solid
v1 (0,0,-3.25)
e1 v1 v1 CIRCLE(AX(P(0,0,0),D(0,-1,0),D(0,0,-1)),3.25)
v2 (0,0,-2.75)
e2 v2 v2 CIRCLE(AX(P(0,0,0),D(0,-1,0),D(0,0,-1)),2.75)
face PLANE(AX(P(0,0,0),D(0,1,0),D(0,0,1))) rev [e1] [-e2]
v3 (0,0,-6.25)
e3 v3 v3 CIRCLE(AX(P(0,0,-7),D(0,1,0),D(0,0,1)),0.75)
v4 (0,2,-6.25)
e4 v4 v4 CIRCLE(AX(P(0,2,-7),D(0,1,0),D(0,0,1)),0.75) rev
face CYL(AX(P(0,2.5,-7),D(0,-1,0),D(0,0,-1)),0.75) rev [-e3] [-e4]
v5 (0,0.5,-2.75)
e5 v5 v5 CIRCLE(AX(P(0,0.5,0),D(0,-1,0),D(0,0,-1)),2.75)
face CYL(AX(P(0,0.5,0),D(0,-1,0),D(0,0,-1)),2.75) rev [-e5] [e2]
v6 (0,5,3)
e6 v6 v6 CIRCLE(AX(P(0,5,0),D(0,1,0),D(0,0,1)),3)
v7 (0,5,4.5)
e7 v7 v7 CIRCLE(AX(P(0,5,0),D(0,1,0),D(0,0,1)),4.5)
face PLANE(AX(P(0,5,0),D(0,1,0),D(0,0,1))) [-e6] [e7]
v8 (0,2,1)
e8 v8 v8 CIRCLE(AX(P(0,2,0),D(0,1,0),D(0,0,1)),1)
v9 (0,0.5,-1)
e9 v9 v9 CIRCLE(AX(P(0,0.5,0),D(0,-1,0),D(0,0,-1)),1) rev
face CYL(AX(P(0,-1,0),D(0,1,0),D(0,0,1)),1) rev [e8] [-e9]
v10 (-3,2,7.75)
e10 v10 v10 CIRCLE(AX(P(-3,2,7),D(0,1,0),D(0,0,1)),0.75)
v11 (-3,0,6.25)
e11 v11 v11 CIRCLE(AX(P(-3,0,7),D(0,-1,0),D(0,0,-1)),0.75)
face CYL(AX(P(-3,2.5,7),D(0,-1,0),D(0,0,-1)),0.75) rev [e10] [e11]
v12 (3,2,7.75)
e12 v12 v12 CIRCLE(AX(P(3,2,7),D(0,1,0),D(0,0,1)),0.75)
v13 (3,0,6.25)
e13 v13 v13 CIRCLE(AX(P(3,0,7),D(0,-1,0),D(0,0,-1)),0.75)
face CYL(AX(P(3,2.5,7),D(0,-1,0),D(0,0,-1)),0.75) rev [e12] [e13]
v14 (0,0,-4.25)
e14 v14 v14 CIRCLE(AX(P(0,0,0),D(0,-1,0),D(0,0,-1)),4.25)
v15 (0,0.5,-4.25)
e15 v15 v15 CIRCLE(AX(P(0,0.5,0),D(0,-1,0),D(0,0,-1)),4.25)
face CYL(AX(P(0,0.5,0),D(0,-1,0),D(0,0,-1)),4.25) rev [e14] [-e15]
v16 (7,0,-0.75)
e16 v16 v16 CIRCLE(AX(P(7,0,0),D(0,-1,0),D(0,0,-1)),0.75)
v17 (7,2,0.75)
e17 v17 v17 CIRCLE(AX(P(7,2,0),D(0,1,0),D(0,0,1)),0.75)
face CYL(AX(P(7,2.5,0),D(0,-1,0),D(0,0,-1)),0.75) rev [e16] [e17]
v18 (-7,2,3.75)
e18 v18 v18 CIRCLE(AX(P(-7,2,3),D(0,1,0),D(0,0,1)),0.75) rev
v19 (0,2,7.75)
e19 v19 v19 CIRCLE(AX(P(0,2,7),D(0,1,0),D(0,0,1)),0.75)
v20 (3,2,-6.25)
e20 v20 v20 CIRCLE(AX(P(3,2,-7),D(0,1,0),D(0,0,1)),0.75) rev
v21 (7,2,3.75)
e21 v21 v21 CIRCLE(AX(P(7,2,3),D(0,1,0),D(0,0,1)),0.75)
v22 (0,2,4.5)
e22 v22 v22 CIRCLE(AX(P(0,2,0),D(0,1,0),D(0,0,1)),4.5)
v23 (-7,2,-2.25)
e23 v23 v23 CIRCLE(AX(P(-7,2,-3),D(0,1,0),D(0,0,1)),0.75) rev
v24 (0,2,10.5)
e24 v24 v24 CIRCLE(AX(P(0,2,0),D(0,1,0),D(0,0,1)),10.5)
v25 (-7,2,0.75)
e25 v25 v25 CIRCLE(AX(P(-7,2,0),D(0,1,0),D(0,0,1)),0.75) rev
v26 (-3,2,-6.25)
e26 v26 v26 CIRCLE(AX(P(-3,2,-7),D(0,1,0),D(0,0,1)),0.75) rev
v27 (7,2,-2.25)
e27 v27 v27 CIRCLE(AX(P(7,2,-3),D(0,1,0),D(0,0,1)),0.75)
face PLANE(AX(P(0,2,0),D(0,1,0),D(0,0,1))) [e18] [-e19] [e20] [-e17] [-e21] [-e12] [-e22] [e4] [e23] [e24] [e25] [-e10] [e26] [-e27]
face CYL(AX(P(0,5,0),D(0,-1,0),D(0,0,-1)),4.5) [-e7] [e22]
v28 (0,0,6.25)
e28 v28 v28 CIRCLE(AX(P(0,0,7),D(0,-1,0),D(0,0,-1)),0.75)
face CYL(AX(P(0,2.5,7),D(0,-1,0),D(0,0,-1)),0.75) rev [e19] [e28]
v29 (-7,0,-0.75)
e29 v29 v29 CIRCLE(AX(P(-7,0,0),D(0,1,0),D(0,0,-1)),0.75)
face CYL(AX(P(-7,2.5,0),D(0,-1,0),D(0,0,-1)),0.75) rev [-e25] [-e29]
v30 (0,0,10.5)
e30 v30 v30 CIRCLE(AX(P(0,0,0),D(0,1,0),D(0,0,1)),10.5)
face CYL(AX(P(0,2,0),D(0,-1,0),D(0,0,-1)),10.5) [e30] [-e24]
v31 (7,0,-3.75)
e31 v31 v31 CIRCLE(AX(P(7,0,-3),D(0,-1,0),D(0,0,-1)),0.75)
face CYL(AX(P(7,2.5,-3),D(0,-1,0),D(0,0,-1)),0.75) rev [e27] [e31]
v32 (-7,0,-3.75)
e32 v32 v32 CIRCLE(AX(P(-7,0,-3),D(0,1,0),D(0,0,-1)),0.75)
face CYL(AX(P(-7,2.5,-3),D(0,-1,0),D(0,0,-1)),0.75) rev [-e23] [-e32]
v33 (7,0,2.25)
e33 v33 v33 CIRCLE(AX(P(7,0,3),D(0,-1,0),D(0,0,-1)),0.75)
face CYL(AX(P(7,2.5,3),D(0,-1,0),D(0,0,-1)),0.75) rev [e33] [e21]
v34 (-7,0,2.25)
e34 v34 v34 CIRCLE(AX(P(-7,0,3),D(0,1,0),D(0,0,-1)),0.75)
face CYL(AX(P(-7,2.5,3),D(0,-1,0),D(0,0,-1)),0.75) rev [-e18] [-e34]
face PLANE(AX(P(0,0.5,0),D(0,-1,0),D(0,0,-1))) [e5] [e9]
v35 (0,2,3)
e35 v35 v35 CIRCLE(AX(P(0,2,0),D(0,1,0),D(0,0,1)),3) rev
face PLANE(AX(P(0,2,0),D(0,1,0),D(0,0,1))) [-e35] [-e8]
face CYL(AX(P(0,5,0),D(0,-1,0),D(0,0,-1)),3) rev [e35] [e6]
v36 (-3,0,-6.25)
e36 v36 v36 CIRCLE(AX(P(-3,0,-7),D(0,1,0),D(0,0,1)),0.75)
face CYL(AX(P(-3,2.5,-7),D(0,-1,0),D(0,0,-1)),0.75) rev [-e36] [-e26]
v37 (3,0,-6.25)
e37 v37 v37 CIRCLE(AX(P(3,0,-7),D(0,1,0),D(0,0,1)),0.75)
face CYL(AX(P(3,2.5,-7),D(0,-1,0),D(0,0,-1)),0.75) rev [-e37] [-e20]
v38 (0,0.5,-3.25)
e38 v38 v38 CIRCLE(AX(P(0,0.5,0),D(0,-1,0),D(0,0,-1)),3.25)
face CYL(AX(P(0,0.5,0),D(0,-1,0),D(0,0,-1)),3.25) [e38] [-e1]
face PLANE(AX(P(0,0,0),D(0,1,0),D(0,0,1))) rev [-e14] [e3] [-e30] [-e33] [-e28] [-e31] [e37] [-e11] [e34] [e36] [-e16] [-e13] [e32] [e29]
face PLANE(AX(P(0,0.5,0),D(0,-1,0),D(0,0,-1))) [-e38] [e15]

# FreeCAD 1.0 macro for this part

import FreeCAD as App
import Part
import Sketcher
from FreeCAD import Vector
Q = App.Units.Quantity

doc = App.newDocument("Part")
body = doc.addObject("PartDesign::Body", "Body")

sketch1 = doc.addObject("Sketcher::SketchObject", "Sketch")
body.addObject(sketch1)
sketch1.AttachmentSupport = (doc.XZ_Plane, [""])
sketch1.MapMode = "FlatFace"
sketch1.addGeometry(Part.Circle(Vector(0, 0, 0), Vector(0, 0, 1), 10), False)
sketch1.addConstraint(Sketcher.Constraint("Coincident", 0, 3, -1, 1))
sketch1.addConstraint(Sketcher.Constraint("Diameter", 0, Q("21 mm")))
pad1 = doc.addObject("PartDesign::Pad", "Pad")
body.addObject(pad1)
pad1.Profile = sketch1
pad1.Length = 2
pad1.Reversed = True

sketch2 = doc.addObject("Sketcher::SketchObject", "Sketch001")
body.addObject(sketch2)
sketch2.AttachmentSupport = (doc.XZ_Plane, [""])
sketch2.MapMode = "FlatFace"
sketch2.AttachmentOffset = App.Placement(Vector(0, 0, -2), App.Rotation())
sketch2.addGeometry(Part.Circle(Vector(0, 0, 0), Vector(0, 0, 1), 4.5), False)
sketch2.addGeometry(Part.Circle(Vector(0, 0, 0), Vector(0, 0, 1), 3), False)
sketch2.addConstraint(Sketcher.Constraint("Coincident", 0, 3, -1, 1))
sketch2.addConstraint(Sketcher.Constraint("Coincident", 1, 3, -1, 1))
sketch2.addConstraint(Sketcher.Constraint("Diameter", 0, Q("9 mm")))
sketch2.addConstraint(Sketcher.Constraint("Diameter", 1, Q("6 mm")))
pad2 = doc.addObject("PartDesign::Pad", "Pad001")
body.addObject(pad2)
pad2.Profile = sketch2
pad2.Length = 3
pad2.Reversed = True

sketch3 = doc.addObject("Sketcher::SketchObject", "Sketch002")
body.addObject(sketch3)
sketch3.AttachmentSupport = (doc.XZ_Plane, [""])
sketch3.MapMode = "FlatFace"
sketch3.AttachmentOffset = App.Placement(Vector(0, 0, -2), App.Rotation())
sketch3.addGeometry(Part.Circle(Vector(0, 0, 0), Vector(0, 0, 1), 1), False)
sketch3.addConstraint(Sketcher.Constraint("Coincident", 0, 3, -1, 1))
sketch3.addConstraint(Sketcher.Constraint("Diameter", 0, Q("2 mm")))
pocket1 = doc.addObject("PartDesign::Pocket", "Pocket")
body.addObject(pocket1)
pocket1.Profile = sketch3
pocket1.Length = 3
pocket1.Reversed = True

sketch4 = doc.addObject("Sketcher::SketchObject", "Sketch003")
body.addObject(sketch4)
sketch4.AttachmentSupport = (doc.XZ_Plane, [""])
sketch4.MapMode = "FlatFace"
sketch4.addGeometry(Part.Circle(Vector(0, 0, 0), Vector(0, 0, 1), 4.2), False)
sketch4.addGeometry(Part.Circle(Vector(0, 0, 0), Vector(0, 0, 1), 3.2), False)
sketch4.addGeometry(Part.Circle(Vector(0, 0, 0), Vector(0, 0, 1), 2.8), False)
sketch4.addGeometry(Part.Circle(Vector(0, 0, 0), Vector(0, 0, 1), 1), False)
sketch4.addConstraint(Sketcher.Constraint("Coincident", 0, 3, -1, 1))
sketch4.addConstraint(Sketcher.Constraint("Coincident", 1, 3, -1, 1))
sketch4.addConstraint(Sketcher.Constraint("Coincident", 2, 3, -1, 1))
sketch4.addConstraint(Sketcher.Constraint("Coincident", 3, 3, -1, 1))
sketch4.addConstraint(Sketcher.Constraint("Diameter", 3, Q("2 mm")))
sketch4.addConstraint(Sketcher.Constraint("Diameter", 0, Q("8.5 mm")))
sketch4.addConstraint(Sketcher.Constraint("Diameter", 1, Q("6.5 mm")))
sketch4.addConstraint(Sketcher.Constraint("Diameter", 2, Q("5.5 mm")))
pocket2 = doc.addObject("PartDesign::Pocket", "Pocket001")
body.addObject(pocket2)
pocket2.Profile = sketch4
pocket2.Length = 0.5

sketch5 = doc.addObject("Sketcher::SketchObject", "Sketch004")
body.addObject(sketch5)
sketch5.AttachmentSupport = (doc.XZ_Plane, [""])
sketch5.MapMode = "FlatFace"
sketch5.addGeometry(Part.Circle(Vector(0, 7, 0), Vector(0, 0, 1), 0.8), False)
sketch5.addGeometry(Part.Circle(Vector(3, 7, 0), Vector(0, 0, 1), 0.8), False)
sketch5.addGeometry(Part.Circle(Vector(-3, 7, 0), Vector(0, 0, 1), 0.8), False)
sketch5.addConstraint(Sketcher.Constraint("Equal", 0, 1))
sketch5.addConstraint(Sketcher.Constraint("Equal", 1, 2))
sketch5.addConstraint(Sketcher.Constraint("Symmetric", 1, 3, 2, 3, -2))
sketch5.addConstraint(Sketcher.Constraint("PointOnObject", 0, 3, -2))
sketch5.addConstraint(Sketcher.Constraint("Horizontal", 0, 3, 1, 3))
sketch5.addConstraint(Sketcher.Constraint("Diameter", 0, Q("1.5 mm")))
sketch5.addConstraint(Sketcher.Constraint("DistanceY", -1, 1, 0, 3, Q("7 mm")))
sketch5.addConstraint(Sketcher.Constraint("DistanceX", -1, 1, 1, 3, Q("3 mm")))
pocket3 = doc.addObject("PartDesign::Pocket", "Pocket002")
body.addObject(pocket3)
pocket3.Profile = sketch5
pocket3.Length = 2.5
doc.recompute()

mirrored = doc.addObject("PartDesign::Mirrored", "Mirrored")
body.addObject(mirrored)
mirrored.Originals = [pocket3]
mirrored.MirrorPlane = (doc.XY_Plane, [""])
body.Tip = mirrored

sketch6 = doc.addObject("Sketcher::SketchObject", "Sketch005")
body.addObject(sketch6)
sketch6.AttachmentSupport = (doc.XZ_Plane, [""])
sketch6.MapMode = "FlatFace"
sketch6.addGeometry(Part.Circle(Vector(7, 0, 0), Vector(0, 0, 1), 0.8), False)
sketch6.addGeometry(Part.Circle(Vector(7, 3, 0), Vector(0, 0, 1), 0.8), False)
sketch6.addGeometry(Part.Circle(Vector(7, -3, 0), Vector(0, 0, 1), 0.8), False)
sketch6.addConstraint(Sketcher.Constraint("Equal", 0, 1))
sketch6.addConstraint(Sketcher.Constraint("Equal", 1, 2))
sketch6.addConstraint(Sketcher.Constraint("Symmetric", 1, 3, 2, 3, -1))
sketch6.addConstraint(Sketcher.Constraint("PointOnObject", 0, 3, -1))
sketch6.addConstraint(Sketcher.Constraint("Vertical", 0, 3, 1, 3))
sketch6.addConstraint(Sketcher.Constraint("Diameter", 0, Q("1.5 mm")))
sketch6.addConstraint(Sketcher.Constraint("DistanceX", -1, 1, 0, 3, Q("7 mm")))
sketch6.addConstraint(Sketcher.Constraint("DistanceY", -1, 1, 1, 3, Q("3 mm")))
pocket4 = doc.addObject("PartDesign::Pocket", "Pocket003")
body.addObject(pocket4)
pocket4.Profile = sketch6
pocket4.Length = 2.5
doc.recompute()

mirrored2 = doc.addObject("PartDesign::Mirrored", "Mirrored001")
body.addObject(mirrored2)
mirrored2.Originals = [pocket4]
mirrored2.MirrorPlane = (doc.YZ_Plane, [""])
body.Tip = mirrored2

doc.recompute()
